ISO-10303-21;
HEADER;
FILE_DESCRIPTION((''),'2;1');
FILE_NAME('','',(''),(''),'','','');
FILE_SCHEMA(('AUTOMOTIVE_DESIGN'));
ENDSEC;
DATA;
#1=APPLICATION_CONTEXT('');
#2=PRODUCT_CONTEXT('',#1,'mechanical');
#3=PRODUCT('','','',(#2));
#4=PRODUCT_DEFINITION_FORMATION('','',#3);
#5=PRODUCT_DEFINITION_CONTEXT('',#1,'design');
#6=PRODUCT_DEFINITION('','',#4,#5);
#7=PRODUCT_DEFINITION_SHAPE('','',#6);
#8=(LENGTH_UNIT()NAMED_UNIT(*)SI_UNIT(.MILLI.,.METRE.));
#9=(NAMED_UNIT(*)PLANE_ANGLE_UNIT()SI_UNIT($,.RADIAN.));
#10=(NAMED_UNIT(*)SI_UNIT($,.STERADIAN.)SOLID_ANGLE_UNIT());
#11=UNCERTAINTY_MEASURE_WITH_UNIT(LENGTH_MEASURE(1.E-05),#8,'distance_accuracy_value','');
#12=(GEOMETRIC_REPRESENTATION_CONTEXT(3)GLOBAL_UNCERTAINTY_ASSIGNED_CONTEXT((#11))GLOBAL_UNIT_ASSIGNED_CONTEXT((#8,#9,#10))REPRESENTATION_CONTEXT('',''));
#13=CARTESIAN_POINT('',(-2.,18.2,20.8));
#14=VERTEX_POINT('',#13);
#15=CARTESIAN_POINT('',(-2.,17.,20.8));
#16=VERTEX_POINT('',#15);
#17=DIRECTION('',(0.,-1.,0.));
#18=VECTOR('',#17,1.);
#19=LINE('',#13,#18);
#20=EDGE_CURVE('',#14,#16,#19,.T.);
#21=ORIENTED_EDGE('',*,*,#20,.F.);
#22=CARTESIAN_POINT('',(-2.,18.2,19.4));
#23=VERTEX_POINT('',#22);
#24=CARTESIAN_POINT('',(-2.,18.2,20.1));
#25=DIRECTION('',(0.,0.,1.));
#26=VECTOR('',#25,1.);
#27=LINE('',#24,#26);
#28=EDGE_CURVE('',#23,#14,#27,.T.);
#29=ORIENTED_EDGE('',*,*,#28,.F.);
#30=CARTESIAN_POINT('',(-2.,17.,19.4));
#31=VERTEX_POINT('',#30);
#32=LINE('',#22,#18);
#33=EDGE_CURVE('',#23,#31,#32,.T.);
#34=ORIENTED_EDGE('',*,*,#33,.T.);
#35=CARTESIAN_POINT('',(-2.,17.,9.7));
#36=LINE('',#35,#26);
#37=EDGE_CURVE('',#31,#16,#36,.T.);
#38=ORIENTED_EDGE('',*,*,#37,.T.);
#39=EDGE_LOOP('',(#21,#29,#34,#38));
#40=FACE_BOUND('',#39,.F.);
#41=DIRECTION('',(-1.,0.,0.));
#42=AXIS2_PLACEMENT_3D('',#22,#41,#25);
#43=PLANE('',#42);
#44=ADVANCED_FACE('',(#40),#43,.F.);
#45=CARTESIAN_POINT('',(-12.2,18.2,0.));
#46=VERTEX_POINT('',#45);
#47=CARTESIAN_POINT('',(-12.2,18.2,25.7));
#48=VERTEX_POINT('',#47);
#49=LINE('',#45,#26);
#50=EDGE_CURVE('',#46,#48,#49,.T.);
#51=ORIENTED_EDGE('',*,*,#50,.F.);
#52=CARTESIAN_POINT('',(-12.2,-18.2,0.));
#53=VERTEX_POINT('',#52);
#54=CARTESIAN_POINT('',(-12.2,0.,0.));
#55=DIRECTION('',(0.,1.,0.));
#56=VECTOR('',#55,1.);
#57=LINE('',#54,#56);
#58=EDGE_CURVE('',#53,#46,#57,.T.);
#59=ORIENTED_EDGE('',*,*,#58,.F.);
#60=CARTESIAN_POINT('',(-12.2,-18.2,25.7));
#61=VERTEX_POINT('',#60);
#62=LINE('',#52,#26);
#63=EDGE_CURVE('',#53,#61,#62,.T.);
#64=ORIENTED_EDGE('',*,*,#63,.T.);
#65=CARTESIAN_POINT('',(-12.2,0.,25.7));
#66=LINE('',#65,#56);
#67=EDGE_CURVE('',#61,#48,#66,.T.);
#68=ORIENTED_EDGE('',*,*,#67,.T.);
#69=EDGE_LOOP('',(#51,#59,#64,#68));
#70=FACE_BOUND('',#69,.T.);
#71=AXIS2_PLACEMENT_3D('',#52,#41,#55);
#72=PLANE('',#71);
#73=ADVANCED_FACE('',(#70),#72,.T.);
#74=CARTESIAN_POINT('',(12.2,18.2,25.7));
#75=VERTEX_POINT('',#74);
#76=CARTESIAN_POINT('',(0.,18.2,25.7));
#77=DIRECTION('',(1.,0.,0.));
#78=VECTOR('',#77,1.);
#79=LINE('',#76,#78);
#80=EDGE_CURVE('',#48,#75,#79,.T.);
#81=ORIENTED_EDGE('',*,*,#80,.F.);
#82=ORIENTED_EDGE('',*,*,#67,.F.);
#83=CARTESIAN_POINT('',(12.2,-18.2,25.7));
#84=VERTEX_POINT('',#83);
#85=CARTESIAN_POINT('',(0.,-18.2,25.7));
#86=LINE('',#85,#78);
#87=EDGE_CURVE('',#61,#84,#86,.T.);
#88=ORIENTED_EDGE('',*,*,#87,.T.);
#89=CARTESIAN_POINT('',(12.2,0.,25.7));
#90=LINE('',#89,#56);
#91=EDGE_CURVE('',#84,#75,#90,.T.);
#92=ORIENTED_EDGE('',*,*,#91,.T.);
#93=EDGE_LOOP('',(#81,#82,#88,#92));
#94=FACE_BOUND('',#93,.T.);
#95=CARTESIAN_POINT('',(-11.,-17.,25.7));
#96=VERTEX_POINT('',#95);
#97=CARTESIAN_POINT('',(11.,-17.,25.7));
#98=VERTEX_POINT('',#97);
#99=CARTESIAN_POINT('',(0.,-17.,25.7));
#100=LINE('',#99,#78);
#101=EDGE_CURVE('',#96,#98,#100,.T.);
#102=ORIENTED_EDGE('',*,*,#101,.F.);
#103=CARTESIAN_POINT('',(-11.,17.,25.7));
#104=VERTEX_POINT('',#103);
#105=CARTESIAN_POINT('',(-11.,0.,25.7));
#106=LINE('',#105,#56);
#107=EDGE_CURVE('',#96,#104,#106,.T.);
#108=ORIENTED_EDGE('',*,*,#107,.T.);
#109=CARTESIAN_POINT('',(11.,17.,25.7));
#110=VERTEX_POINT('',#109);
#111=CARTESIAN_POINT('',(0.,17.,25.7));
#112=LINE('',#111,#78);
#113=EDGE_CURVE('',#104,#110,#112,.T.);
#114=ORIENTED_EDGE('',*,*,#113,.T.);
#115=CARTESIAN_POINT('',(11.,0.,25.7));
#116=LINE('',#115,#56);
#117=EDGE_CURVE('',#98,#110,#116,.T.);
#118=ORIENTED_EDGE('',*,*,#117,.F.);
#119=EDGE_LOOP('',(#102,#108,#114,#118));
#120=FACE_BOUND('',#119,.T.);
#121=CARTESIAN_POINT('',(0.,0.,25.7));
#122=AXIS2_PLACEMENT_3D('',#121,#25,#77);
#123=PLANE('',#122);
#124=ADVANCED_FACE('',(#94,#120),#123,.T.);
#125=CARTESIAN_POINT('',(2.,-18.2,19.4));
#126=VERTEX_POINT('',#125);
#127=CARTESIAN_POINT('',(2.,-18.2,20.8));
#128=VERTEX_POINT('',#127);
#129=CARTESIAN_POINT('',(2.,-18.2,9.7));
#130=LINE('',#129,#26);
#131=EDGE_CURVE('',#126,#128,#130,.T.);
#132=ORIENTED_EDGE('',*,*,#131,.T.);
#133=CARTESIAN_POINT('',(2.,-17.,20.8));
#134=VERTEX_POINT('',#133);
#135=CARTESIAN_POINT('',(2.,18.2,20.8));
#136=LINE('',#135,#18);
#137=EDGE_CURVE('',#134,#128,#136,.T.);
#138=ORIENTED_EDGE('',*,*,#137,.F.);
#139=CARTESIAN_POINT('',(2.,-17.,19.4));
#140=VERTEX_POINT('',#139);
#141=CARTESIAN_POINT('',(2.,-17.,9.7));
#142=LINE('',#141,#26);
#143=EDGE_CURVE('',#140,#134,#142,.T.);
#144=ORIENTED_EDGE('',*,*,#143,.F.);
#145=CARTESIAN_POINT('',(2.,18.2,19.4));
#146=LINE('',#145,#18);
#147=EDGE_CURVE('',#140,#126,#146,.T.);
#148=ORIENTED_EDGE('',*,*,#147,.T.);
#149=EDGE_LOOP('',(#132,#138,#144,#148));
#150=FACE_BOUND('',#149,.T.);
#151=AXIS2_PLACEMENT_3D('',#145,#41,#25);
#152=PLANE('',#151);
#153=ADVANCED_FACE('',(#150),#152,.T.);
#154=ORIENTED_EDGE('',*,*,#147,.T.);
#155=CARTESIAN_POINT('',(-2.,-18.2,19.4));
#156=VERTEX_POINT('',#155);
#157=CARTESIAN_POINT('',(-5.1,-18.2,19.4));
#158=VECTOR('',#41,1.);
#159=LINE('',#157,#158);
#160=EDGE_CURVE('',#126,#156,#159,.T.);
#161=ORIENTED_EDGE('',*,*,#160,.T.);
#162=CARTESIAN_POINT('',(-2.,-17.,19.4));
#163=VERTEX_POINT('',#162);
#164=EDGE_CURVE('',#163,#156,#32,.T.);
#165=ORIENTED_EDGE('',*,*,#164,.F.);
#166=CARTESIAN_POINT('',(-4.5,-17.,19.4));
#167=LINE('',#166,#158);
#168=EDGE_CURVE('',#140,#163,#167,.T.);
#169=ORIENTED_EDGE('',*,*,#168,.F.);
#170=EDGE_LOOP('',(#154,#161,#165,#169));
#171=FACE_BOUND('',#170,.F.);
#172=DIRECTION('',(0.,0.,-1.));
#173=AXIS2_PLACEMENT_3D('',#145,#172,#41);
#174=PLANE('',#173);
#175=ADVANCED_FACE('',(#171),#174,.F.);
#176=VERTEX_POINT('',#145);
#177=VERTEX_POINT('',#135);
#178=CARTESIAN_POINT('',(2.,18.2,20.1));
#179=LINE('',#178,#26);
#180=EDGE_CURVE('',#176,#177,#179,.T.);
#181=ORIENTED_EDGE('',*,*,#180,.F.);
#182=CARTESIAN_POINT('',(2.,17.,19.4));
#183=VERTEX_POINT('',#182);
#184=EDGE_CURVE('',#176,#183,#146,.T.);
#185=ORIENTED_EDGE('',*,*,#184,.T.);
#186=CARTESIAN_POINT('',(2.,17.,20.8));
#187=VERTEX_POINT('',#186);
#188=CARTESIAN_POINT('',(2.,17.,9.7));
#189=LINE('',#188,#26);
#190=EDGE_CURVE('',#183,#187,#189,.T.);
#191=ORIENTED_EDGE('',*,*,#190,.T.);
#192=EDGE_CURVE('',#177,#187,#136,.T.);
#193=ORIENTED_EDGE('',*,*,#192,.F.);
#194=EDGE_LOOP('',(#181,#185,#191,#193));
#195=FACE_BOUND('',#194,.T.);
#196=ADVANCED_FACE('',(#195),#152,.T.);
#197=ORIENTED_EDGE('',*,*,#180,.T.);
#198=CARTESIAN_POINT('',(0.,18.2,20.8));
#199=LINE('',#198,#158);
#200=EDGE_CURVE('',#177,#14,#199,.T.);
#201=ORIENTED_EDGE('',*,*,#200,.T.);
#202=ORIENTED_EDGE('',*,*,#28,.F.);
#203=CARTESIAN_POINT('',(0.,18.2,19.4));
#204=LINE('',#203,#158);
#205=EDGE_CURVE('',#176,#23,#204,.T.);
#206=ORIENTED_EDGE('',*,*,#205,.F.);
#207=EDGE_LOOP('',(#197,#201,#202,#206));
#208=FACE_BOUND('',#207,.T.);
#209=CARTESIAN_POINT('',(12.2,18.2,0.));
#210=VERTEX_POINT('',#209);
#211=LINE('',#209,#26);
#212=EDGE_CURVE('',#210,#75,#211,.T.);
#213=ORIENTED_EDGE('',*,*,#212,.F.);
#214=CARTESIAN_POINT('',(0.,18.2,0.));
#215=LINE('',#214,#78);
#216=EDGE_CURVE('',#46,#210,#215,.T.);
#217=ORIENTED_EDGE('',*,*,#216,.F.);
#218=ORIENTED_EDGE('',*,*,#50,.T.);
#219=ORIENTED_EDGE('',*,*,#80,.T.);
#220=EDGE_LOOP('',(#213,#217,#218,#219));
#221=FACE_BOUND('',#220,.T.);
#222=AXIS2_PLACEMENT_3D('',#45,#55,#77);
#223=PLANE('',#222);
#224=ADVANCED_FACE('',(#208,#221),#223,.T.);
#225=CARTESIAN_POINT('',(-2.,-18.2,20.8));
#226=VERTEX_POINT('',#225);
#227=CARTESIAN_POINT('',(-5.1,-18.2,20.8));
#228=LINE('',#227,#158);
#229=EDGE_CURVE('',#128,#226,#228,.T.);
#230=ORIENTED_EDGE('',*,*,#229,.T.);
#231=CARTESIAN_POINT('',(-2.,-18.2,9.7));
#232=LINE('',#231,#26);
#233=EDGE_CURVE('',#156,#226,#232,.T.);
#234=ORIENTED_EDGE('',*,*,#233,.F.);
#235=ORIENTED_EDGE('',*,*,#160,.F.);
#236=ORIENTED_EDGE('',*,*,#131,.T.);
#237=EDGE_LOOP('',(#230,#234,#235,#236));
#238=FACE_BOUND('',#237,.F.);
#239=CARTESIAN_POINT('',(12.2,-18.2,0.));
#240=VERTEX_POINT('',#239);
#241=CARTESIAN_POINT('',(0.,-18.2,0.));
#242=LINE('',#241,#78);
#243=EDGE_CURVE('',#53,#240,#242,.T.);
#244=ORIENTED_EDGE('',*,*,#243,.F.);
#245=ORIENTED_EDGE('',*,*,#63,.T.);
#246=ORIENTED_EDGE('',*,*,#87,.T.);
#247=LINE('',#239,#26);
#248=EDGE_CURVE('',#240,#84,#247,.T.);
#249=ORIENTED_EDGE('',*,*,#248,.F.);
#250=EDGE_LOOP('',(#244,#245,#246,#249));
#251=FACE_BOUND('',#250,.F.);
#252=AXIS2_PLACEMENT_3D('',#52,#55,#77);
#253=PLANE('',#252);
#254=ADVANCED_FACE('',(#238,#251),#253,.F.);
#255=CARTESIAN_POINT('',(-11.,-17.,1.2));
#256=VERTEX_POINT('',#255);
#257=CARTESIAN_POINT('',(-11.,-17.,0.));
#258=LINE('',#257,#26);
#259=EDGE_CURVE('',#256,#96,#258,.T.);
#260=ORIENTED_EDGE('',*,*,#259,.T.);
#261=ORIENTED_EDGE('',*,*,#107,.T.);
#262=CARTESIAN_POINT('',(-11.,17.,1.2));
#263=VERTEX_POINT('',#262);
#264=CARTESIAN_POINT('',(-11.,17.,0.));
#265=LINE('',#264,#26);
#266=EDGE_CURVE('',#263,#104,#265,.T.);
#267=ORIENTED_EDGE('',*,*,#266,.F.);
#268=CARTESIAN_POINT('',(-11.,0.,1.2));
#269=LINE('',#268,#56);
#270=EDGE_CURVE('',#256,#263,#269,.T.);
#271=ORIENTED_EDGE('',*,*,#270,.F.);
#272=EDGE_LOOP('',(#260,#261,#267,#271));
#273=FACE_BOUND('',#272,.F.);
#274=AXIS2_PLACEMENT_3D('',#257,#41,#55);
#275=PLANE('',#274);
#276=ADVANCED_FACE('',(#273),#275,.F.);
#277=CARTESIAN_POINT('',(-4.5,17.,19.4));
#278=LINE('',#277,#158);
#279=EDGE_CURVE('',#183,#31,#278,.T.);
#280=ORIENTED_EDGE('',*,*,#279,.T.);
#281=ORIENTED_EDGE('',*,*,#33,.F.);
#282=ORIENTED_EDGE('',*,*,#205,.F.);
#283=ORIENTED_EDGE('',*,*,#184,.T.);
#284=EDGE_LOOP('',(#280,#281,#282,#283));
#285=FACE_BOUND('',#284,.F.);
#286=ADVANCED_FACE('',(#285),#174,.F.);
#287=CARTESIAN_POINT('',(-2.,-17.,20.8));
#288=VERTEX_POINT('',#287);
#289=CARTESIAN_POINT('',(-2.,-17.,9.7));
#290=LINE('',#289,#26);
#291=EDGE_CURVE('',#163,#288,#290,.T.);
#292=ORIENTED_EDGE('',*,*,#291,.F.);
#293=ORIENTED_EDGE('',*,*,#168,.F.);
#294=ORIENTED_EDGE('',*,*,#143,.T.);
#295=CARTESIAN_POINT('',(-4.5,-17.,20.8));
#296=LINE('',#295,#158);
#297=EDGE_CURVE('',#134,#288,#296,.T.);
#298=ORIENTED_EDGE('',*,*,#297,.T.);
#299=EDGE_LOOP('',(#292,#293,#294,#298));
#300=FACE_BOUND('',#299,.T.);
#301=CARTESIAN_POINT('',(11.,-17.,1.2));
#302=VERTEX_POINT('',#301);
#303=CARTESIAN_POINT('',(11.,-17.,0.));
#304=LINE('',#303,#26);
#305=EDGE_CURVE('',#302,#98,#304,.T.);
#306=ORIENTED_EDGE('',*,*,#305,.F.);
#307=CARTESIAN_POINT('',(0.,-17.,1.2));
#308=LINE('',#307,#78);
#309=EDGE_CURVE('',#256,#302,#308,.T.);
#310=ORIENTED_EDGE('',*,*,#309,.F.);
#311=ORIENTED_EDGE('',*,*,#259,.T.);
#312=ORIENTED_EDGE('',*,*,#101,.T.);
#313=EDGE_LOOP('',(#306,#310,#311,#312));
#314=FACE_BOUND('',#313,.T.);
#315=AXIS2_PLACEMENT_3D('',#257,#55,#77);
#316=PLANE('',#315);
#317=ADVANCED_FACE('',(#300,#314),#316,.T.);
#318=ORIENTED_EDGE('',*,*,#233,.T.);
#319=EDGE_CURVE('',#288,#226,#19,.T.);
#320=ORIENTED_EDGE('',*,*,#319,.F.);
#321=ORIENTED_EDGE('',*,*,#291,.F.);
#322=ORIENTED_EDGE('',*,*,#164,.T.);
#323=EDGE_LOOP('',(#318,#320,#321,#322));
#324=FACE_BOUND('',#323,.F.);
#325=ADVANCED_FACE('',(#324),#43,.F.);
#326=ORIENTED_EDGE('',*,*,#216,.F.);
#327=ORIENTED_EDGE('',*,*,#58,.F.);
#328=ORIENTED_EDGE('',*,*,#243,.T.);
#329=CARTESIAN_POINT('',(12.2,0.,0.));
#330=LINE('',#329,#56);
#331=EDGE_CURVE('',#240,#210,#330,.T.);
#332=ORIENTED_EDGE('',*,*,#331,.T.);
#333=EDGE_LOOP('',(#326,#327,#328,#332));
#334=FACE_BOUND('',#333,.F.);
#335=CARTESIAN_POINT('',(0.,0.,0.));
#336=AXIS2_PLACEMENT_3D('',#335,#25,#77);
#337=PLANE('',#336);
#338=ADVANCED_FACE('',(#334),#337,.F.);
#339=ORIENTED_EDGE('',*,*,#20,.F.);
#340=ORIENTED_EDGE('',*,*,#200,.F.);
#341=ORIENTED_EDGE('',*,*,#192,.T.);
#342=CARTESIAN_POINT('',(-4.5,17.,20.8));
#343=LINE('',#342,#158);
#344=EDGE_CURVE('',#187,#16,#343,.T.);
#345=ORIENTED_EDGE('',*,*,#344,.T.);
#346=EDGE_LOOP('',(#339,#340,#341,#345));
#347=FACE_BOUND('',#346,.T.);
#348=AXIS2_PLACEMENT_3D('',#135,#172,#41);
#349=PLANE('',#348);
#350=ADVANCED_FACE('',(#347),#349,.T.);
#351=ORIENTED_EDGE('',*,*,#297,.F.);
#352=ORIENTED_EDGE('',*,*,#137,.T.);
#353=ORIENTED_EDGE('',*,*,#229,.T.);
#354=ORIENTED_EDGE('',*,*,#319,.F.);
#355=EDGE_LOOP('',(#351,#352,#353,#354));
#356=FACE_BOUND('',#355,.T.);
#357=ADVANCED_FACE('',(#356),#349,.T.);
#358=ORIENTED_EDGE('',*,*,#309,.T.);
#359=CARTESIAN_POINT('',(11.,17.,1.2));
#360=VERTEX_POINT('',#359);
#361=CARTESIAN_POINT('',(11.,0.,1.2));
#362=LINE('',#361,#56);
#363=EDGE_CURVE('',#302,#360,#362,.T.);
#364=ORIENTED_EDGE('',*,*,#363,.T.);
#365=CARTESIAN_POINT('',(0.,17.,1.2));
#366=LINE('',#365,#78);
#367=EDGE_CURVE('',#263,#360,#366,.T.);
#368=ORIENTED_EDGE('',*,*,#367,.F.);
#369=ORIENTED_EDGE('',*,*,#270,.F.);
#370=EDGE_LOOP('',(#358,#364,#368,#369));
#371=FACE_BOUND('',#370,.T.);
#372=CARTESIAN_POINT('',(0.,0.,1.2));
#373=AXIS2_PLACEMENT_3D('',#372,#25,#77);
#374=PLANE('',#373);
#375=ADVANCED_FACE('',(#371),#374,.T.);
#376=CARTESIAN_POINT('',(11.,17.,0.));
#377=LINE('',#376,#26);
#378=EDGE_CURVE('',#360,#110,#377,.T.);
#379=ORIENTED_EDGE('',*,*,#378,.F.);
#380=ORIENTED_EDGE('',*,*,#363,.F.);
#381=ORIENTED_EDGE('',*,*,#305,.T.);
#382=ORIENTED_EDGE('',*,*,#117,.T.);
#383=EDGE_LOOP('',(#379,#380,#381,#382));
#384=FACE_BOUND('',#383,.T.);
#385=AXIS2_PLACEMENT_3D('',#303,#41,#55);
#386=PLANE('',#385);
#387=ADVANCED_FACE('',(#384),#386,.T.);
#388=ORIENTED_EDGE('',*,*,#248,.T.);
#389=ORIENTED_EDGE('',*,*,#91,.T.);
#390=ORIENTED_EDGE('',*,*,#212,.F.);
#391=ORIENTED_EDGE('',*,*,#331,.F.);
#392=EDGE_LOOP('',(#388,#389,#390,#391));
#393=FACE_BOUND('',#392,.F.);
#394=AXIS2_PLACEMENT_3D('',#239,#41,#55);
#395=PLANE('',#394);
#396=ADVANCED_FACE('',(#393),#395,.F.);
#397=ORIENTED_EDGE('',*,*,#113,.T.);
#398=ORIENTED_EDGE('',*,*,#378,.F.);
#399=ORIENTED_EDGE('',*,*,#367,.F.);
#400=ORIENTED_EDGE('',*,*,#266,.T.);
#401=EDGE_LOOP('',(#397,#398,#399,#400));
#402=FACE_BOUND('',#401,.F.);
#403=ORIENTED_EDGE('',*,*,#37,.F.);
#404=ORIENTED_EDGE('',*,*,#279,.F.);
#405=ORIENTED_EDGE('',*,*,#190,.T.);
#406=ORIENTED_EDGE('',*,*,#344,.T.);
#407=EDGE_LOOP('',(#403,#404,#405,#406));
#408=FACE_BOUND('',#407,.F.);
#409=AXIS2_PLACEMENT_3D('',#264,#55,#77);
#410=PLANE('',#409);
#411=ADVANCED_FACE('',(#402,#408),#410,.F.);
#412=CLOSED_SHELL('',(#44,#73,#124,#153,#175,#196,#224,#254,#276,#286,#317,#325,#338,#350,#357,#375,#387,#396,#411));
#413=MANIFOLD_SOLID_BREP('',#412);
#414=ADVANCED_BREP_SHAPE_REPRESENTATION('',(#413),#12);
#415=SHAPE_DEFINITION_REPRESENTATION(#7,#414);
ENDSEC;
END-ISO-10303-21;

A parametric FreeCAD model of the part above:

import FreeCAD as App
import Part
import Sketcher
Q = App.Units.Quantity


def add_polygon(sketch, points):
    """Adds a closed chain of lines whose ends are joined by coincident constraints."""
    first, n = sketch.GeometryCount, len(points)
    for a, b in zip(points, points[1:] + points[:1]):
        sketch.addGeometry(Part.LineSegment(App.Vector(*a, 0), App.Vector(*b, 0)), False)
    for i in range(n):
        sketch.addConstraint(Sketcher.Constraint("Coincident", first + i, 2, first + (i + 1) % n, 1))

doc = App.newDocument("Part")
params = doc.addObject("Spreadsheet::Sheet", "Params")
for row, (alias, value) in enumerate([
    ("sketch1_width", "22 mm"),
    ("sketch1_height", "34 mm"),
    ("pad1_length", "1.2 mm"),
    ("sketch2_width", "22 mm"),
    ("sketch2_height", "34 mm"),
    ("sketch2_width2", "24.4 mm"),
    ("sketch2_height2", "36.4 mm"),
    ("pad2_length", "25.7 mm"),
    ("sketch3_width", "4 mm"),
    ("sketch3_height", "1.4 mm"),
], start=1):
    params.set(f"A{row}", alias)
    params.set(f"B{row}", "=" + value)
    params.setAlias(f"B{row}", alias)

body = doc.addObject("PartDesign::Body", "Body")

# Sketch on XY plane
sketch1 = doc.addObject("Sketcher::SketchObject", "Sketch")
body.addObject(sketch1)
sketch1.AttachmentSupport = (doc.XY_Plane, [""])
sketch1.MapMode = "FlatFace"
add_polygon(sketch1, [(-11, 17), (-11, -17), (11, -17), (11, 17)])  # lines 0-3
sketch1.addConstraint([
    Sketcher.Constraint("Vertical", 0),
    Sketcher.Constraint("Horizontal", 1),
    Sketcher.Constraint("Vertical", 2),
    Sketcher.Constraint("Horizontal", 3),
    Sketcher.Constraint("Symmetric", 0, 2, 2, 2, -1, 1),
    Sketcher.Constraint("DistanceX", 1, 1, 1, 2, Q("22 mm")),
    Sketcher.Constraint("DistanceY", 0, 2, 0, 1, Q("34 mm")),
])
sketch1.setExpression("Constraints[9]", "Params.sketch1_width")
sketch1.setExpression("Constraints[10]", "Params.sketch1_height")
pad1 = doc.addObject("PartDesign::Pad", "Pad")
body.addObject(pad1)
pad1.Profile = sketch1
pad1.setExpression("Length", "Params.pad1_length")

# Sketch on XY plane
sketch2 = doc.addObject("Sketcher::SketchObject", "Sketch001")
body.addObject(sketch2)
sketch2.AttachmentSupport = (doc.XY_Plane, [""])
sketch2.MapMode = "FlatFace"
add_polygon(sketch2, [(-12, 18), (-12, -18), (12, -18), (12, 18)])  # lines 0-3
add_polygon(sketch2, [(11, -17), (-11, -17), (-11, 17), (11, 17)])  # lines 4-7
sketch2.addConstraint([
    Sketcher.Constraint("Vertical", 0),
    Sketcher.Constraint("Horizontal", 1),
    Sketcher.Constraint("Vertical", 2),
    Sketcher.Constraint("Horizontal", 3),
    Sketcher.Constraint("Horizontal", 4),
    Sketcher.Constraint("Vertical", 5),
    Sketcher.Constraint("Horizontal", 6),
    Sketcher.Constraint("Vertical", 7),
    Sketcher.Constraint("Symmetric", 0, 2, 2, 2, -1, 1),
    Sketcher.Constraint("Symmetric", 4, 2, 6, 2, -1, 1),
    Sketcher.Constraint("DistanceX", 4, 2, 4, 1, Q("22 mm")),
    Sketcher.Constraint("DistanceY", 5, 1, 5, 2, Q("34 mm")),
    Sketcher.Constraint("DistanceX", 1, 1, 1, 2, Q("24.4 mm")),
    Sketcher.Constraint("DistanceY", 0, 2, 0, 1, Q("36.4 mm")),
])
sketch2.setExpression("Constraints[18]", "Params.sketch2_width")
sketch2.setExpression("Constraints[19]", "Params.sketch2_height")
sketch2.setExpression("Constraints[20]", "Params.sketch2_width2")
sketch2.setExpression("Constraints[21]", "Params.sketch2_height2")
pad2 = doc.addObject("PartDesign::Pad", "Pad001")
body.addObject(pad2)
pad2.Profile = sketch2
pad2.setExpression("Length", "Params.pad2_length")

# Sketch on XZ plane
sketch3 = doc.addObject("Sketcher::SketchObject", "Sketch002")
body.addObject(sketch3)
sketch3.AttachmentSupport = (doc.XZ_Plane, [""])
sketch3.MapMode = "FlatFace"
sketch3.AttachmentOffset = App.Placement(App.Vector(0, 0, -18.2), App.Rotation())
add_polygon(sketch3, [(2, 20.8), (2, 19.4), (-2, 19.4), (-2, 20.8)])  # lines 0-3
sketch3.addConstraint([
    Sketcher.Constraint("Vertical", 0),
    Sketcher.Constraint("Horizontal", 1),
    Sketcher.Constraint("Vertical", 2),
    Sketcher.Constraint("Horizontal", 3),
    Sketcher.Constraint("DistanceX", 1, 2, 1, 1, Q("4 mm")),
    Sketcher.Constraint("DistanceY", 0, 2, 0, 1, Q("1.4 mm")),
    Sketcher.Constraint("DistanceX", -1, 1, 0, 2, Q("2 mm")),
    Sketcher.Constraint("DistanceY", -1, 1, 0, 2, Q("19.4 mm")),
])
sketch3.setExpression("Constraints[8]", "Params.sketch3_width")
sketch3.setExpression("Constraints[9]", "Params.sketch3_height")
pocket1 = doc.addObject("PartDesign::Pocket", "Pocket")
body.addObject(pocket1)
pocket1.Profile = sketch3
pocket1.Type = "ThroughAll"
pocket1.Reversed = True

doc.recompute()
